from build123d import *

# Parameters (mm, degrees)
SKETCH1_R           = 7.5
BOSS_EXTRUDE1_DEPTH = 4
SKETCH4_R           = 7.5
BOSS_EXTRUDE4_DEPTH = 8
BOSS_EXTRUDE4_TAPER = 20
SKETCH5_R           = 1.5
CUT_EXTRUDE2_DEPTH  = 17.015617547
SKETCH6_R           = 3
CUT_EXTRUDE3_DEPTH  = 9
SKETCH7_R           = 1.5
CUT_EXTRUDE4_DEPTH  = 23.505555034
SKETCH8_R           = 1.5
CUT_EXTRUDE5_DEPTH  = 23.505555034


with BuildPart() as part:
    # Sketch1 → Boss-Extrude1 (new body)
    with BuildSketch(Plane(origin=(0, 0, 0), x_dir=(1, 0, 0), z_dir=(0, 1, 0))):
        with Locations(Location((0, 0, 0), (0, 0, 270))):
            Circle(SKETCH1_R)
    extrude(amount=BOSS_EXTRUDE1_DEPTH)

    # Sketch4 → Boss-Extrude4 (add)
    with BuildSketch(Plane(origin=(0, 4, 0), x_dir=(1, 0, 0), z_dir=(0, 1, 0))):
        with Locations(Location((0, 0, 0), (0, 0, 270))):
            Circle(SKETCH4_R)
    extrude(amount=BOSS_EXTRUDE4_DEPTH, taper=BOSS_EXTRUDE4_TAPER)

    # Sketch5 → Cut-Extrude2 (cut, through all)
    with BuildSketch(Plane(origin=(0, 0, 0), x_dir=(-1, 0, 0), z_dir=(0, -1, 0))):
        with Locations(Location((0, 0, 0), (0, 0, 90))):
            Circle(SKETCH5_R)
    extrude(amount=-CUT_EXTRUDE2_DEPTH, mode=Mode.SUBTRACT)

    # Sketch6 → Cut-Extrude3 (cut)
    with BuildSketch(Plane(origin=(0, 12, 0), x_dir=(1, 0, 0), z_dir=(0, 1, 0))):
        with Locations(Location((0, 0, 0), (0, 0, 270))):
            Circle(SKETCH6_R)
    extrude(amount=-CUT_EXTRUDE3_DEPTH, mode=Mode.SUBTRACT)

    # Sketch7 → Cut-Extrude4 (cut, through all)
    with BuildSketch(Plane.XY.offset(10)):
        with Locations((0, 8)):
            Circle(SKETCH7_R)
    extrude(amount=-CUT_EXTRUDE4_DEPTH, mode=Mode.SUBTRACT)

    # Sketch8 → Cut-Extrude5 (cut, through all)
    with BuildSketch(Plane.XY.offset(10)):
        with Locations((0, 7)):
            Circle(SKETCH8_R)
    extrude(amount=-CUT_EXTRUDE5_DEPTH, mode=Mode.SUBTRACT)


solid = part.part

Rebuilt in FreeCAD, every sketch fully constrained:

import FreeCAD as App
import Part
import Sketcher

V = App.Vector

doc = App.newDocument("Part")
body = doc.addObject("PartDesign::Body", "Body")

sketch1 = body.newObject("Sketcher::SketchObject", "Sketch")
sketch1.AttachmentSupport = (doc.getObject("XZ_Plane"), [""])
sketch1.MapMode = "FlatFace"
sketch1.addGeometry(Part.Circle(V(0, 0, 0), V(0, 0, 1), 8), False)
sketch1.addConstraint([
    Sketcher.Constraint("Coincident", 0, 3, -1, 1),
    Sketcher.Constraint("Diameter", 0, 15.0),
])
pad1 = body.newObject("PartDesign::Pad", "Pad")
pad1.Profile = sketch1
pad1.Length = 4
pad1.Reversed = True

sketch2 = body.newObject("Sketcher::SketchObject", "Sketch001")
sketch2.AttachmentSupport = (doc.getObject("XZ_Plane"), [""])
sketch2.MapMode = "FlatFace"
sketch2.AttachmentOffset = App.Placement(V(0, 0, -4), App.Rotation())
sketch2.addGeometry(Part.Circle(V(0, 0, 0), V(0, 0, 1), 8), False)
sketch2.addConstraint([
    Sketcher.Constraint("Coincident", 0, 3, -1, 1),
    Sketcher.Constraint("Diameter", 0, 15.0),
])
pad2 = body.newObject("PartDesign::Pad", "Pad001")
pad2.Profile = sketch2
pad2.Length = 8
pad2.Reversed = True
pad2.TaperAngle = -20

sketch3 = body.newObject("Sketcher::SketchObject", "Sketch002")
sketch3.AttachmentSupport = (doc.getObject("XZ_Plane"), [""])
sketch3.MapMode = "FlatFace"
sketch3.addGeometry(Part.Circle(V(0, 0, 0), V(0, 0, 1), 1.5), False)
sketch3.addConstraint([
    Sketcher.Constraint("Coincident", 0, 3, -1, 1),
    Sketcher.Constraint("Diameter", 0, 3.0),
])
pocket1 = body.newObject("PartDesign::Pocket", "Pocket")
pocket1.Profile = sketch3
pocket1.Type = "ThroughAll"

sketch4 = body.newObject("Sketcher::SketchObject", "Sketch003")
sketch4.AttachmentSupport = (doc.getObject("XZ_Plane"), [""])
sketch4.MapMode = "FlatFace"
sketch4.AttachmentOffset = App.Placement(V(0, 0, -12), App.Rotation())
sketch4.addGeometry(Part.Circle(V(0, 0, 0), V(0, 0, 1), 3), False)
sketch4.addConstraint([
    Sketcher.Constraint("Coincident", 0, 3, -1, 1),
    Sketcher.Constraint("Diameter", 0, 6.0),
])
pocket2 = body.newObject("PartDesign::Pocket", "Pocket001")
pocket2.Profile = sketch4
pocket2.Length = 9
pocket2.Reversed = True

sketch5 = body.newObject("Sketcher::SketchObject", "Sketch004")
sketch5.AttachmentSupport = (doc.getObject("XY_Plane"), [""])
sketch5.MapMode = "FlatFace"
sketch5.AttachmentOffset = App.Placement(V(0, 0, 10), App.Rotation())
sketch5.addGeometry(Part.Circle(V(0, 8, 0), V(0, 0, 1), 1.5), False)
sketch5.addConstraint([
    Sketcher.Constraint("PointOnObject", 0, 3, -2),
    Sketcher.Constraint("Diameter", 0, 3.0),
    Sketcher.Constraint("DistanceY", -1, 1, 0, 3, 8.0),
])
pocket3 = body.newObject("PartDesign::Pocket", "Pocket002")
pocket3.Profile = sketch5
pocket3.Type = "ThroughAll"

sketch6 = body.newObject("Sketcher::SketchObject", "Sketch005")
sketch6.AttachmentSupport = (doc.getObject("XY_Plane"), [""])
sketch6.MapMode = "FlatFace"
sketch6.AttachmentOffset = App.Placement(V(0, 0, 10), App.Rotation())
sketch6.addGeometry(Part.Circle(V(0, 7, 0), V(0, 0, 1), 1.5), False)
sketch6.addConstraint([
    Sketcher.Constraint("PointOnObject", 0, 3, -2),
    Sketcher.Constraint("Diameter", 0, 3.0),
    Sketcher.Constraint("DistanceY", -1, 1, 0, 3, 7.0),
])
pocket4 = body.newObject("PartDesign::Pocket", "Pocket003")
pocket4.Profile = sketch6
pocket4.Type = "ThroughAll"

doc.recompute()
